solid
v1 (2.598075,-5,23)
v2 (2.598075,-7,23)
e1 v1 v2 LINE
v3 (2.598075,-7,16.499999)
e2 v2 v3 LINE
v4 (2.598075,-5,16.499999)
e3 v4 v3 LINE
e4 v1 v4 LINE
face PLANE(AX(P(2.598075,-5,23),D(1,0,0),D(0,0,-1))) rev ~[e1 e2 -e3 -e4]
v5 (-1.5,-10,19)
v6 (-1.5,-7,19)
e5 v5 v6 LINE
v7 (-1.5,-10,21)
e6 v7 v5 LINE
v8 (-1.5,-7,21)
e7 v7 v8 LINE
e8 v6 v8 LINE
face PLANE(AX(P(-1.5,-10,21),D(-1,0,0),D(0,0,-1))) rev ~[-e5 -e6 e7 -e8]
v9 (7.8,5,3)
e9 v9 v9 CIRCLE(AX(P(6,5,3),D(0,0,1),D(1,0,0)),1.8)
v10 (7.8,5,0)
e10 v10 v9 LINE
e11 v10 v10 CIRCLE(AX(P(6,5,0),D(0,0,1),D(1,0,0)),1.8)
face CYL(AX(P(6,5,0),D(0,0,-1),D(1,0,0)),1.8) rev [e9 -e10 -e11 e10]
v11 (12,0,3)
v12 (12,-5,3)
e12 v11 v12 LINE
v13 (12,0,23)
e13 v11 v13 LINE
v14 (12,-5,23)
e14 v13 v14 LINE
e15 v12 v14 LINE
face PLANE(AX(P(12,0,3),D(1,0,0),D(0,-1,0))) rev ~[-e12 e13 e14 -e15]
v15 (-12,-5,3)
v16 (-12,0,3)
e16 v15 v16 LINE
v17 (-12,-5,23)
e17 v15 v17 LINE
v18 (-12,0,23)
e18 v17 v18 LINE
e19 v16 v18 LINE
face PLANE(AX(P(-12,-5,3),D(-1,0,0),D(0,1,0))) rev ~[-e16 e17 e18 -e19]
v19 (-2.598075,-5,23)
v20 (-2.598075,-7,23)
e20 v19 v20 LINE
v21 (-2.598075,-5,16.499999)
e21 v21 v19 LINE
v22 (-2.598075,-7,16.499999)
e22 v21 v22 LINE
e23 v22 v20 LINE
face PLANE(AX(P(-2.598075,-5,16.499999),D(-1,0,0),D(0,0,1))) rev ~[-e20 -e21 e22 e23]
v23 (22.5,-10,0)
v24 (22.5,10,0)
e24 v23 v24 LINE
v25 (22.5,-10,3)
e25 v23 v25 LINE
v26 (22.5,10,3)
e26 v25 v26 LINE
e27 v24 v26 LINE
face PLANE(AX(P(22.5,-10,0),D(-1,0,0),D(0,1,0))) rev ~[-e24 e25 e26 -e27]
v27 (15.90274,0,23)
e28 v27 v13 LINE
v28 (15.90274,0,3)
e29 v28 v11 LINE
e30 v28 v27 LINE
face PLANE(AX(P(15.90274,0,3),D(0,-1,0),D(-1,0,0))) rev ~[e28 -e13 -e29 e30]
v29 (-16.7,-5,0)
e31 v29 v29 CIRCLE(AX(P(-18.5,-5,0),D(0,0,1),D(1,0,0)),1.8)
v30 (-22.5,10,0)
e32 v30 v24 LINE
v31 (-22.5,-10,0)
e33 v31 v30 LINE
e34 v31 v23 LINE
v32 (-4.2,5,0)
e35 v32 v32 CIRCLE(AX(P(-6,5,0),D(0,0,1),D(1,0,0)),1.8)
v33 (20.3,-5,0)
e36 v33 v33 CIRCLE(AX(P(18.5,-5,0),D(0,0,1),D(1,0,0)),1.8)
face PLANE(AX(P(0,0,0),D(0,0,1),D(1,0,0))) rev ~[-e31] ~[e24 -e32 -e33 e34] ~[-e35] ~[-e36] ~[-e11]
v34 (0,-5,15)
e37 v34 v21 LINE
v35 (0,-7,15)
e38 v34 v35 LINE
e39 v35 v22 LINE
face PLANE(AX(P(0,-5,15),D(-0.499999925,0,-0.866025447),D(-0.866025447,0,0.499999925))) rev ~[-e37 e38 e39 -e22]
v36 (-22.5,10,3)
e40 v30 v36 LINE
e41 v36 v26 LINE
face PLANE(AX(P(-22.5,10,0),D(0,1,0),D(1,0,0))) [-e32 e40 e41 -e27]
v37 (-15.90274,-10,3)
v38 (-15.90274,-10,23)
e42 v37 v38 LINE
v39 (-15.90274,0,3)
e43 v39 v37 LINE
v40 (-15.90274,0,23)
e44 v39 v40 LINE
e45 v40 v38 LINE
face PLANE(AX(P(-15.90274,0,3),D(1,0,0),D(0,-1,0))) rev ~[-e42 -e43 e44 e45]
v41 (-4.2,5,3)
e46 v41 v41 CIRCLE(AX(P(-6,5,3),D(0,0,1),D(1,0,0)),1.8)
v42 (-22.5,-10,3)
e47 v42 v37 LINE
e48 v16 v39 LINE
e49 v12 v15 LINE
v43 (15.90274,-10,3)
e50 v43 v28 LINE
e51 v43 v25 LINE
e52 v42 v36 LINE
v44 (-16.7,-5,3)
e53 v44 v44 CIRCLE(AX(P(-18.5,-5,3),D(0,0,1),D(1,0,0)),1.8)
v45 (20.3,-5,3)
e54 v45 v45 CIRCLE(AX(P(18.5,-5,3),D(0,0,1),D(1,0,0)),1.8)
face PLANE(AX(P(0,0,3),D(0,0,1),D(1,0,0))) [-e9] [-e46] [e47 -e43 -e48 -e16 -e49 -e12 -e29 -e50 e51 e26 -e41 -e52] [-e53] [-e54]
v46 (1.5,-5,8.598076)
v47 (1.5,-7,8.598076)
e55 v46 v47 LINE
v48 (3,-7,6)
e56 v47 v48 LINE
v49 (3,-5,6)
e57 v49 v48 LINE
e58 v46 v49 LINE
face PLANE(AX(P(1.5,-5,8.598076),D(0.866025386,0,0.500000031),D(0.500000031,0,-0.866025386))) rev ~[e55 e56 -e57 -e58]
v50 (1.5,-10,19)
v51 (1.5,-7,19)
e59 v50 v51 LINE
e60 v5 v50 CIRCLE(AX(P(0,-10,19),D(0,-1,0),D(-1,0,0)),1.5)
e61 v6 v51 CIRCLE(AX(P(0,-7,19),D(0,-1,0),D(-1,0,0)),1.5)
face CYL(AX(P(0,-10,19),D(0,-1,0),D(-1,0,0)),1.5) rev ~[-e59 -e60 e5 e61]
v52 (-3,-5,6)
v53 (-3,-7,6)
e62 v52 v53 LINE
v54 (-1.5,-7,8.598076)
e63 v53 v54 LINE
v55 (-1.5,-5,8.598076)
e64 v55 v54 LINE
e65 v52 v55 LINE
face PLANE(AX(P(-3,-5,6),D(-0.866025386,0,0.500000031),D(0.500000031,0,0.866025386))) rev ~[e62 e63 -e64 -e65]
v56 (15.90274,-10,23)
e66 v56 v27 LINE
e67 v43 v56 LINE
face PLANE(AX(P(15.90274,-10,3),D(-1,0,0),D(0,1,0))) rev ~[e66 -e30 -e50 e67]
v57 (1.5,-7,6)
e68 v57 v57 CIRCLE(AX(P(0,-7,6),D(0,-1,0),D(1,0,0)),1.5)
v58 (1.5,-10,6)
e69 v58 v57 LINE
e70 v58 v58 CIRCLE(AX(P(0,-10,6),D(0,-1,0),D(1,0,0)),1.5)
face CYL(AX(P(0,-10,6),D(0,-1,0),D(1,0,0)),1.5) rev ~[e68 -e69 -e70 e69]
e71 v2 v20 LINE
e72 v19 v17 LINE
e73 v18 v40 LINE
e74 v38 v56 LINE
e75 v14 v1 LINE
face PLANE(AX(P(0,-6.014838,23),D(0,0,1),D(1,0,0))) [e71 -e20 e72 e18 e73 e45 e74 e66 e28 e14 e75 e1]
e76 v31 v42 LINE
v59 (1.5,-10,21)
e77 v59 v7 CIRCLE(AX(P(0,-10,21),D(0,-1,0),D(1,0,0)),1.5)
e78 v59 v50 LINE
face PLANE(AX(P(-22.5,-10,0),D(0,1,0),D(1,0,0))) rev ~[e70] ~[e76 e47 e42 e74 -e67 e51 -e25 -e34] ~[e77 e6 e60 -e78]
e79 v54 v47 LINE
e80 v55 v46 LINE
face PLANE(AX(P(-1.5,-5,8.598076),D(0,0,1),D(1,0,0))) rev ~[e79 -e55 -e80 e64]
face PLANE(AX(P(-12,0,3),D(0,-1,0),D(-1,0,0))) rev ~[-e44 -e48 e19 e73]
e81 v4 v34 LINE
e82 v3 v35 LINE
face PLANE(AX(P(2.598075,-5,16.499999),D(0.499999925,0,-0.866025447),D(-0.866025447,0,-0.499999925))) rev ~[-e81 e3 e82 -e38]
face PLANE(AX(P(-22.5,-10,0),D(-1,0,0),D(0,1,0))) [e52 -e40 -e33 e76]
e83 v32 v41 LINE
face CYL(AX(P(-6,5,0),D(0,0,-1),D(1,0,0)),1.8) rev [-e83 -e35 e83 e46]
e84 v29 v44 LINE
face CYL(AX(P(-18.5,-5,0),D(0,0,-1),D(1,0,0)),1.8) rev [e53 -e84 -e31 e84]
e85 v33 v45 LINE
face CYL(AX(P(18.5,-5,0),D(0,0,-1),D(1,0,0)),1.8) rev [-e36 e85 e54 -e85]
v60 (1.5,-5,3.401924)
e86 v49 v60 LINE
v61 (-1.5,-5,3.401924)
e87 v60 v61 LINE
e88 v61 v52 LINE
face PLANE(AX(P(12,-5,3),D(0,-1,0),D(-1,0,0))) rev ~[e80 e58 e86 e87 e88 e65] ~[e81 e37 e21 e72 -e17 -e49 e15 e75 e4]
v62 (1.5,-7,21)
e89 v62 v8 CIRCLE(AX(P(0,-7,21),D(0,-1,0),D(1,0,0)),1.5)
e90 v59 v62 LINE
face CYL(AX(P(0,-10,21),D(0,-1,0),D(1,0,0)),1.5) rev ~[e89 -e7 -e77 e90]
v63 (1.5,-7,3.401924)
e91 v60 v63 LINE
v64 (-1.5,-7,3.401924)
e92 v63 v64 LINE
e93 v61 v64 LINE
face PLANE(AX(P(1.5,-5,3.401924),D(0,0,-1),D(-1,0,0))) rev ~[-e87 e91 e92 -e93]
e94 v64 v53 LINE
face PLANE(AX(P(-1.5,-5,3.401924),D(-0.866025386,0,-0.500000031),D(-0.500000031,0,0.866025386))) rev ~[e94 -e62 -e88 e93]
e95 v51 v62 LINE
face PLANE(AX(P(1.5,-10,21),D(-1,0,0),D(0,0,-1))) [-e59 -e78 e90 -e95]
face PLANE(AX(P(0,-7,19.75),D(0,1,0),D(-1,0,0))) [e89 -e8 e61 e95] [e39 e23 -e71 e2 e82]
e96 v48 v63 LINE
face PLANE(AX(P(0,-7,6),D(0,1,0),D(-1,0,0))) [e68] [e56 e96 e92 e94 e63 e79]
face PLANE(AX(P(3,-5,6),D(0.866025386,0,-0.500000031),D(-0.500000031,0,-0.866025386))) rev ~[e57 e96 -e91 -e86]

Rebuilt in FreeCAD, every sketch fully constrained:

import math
import FreeCAD as App
import Part
import Sketcher
from FreeCAD import Vector
Q = App.Units.Quantity


def add_polygon(sketch, points):
    """Adds a closed chain of lines whose ends are joined by coincident constraints."""
    first, n = sketch.GeometryCount, len(points)
    for a, b in zip(points, points[1:] + points[:1]):
        sketch.addGeometry(Part.LineSegment(App.Vector(*a, 0), App.Vector(*b, 0)), False)
    for i in range(n):
        sketch.addConstraint(Sketcher.Constraint("Coincident", first + i, 2, first + (i + 1) % n, 1))

doc = App.newDocument("Part")
body = doc.addObject("PartDesign::Body", "Body")
body.AllowCompound = True

# Sketch on XZ plane
sketch1 = body.newObject("Sketcher::SketchObject", "Sketch")
sketch1.AttachmentSupport = (doc.getObject("XZ_Plane"), [""])
sketch1.MapMode = "FlatFace"
sketch1.AttachmentOffset = App.Placement(Vector(0, 0, 10), App.Rotation())
sketch1.addGeometry([
    Part.Circle(Vector(0, 6, 0), Vector(0, 0, 1), 1.5),  # 0
    Part.ArcOfCircle(Part.Circle(Vector(0, 21, 0), Vector(0, 0, 1), 1.5), math.radians(0), math.radians(180)),  # 1
    Part.LineSegment(Vector(-1.5, 21, 0), Vector(-1.5, 19, 0)),  # 2
    Part.ArcOfCircle(Part.Circle(Vector(0, 19, 0), Vector(0, 0, 1), 1.5), math.radians(180), math.radians(360)),  # 3
    Part.LineSegment(Vector(1.5, 19, 0), Vector(1.5, 21, 0)),  # 4
], False)
sketch1.addConstraint([
    Sketcher.Constraint("Tangent", 1, 2, 2, 1),
    Sketcher.Constraint("Tangent", 2, 2, 3, 1),
    Sketcher.Constraint("Tangent", 3, 2, 4, 1),
    Sketcher.Constraint("Tangent", 4, 2, 1, 1),
    Sketcher.Constraint("Vertical", 2),
    Sketcher.Constraint("Vertical", 4),
    Sketcher.Constraint("Equal", 0, 1),
    Sketcher.Constraint("PointOnObject", 0, 3, -2),
    Sketcher.Constraint("PointOnObject", 1, 3, -2),
    Sketcher.Constraint("Diameter", 0, Q("3 mm")),
    Sketcher.Constraint("DistanceY", 2, 2, 2, 1, Q("2 mm")),
    Sketcher.Constraint("DistanceY", -1, 1, 0, 3, Q("6 mm")),
    Sketcher.Constraint("DistanceY", -1, 1, 1, 3, Q("21 mm")),
])
pad1 = body.newObject("PartDesign::Pad", "Pad")
pad1.Profile = sketch1
pad1.Length = 5
pad1.Reversed = True
body2 = doc.addObject("PartDesign::Body", "Body001")
body2.AllowCompound = True

# Sketch on XZ plane
sketch2 = body2.newObject("Sketcher::SketchObject", "Sketch001")
sketch2.AttachmentSupport = (doc.getObject("XZ_Plane001"), [""])
sketch2.MapMode = "FlatFace"
sketch2.AttachmentOffset = App.Placement(Vector(0, 0, 5), App.Rotation())
add_polygon(sketch2, [(1.5, 3.4), (-1.5, 3.4), (-3, 6), (-1.5, 8.6), (1.5, 8.6), (3, 6)])  # lines 0-5
add_polygon(sketch2, [(-2.6, 16.5), (-2.6, 23), (0, 24.5), (2.6, 23), (2.6, 16.5), (0, 15)])  # lines 6-11
sketch2.addConstraint([
    Sketcher.Constraint("Horizontal", 0),
    Sketcher.Constraint("Horizontal", 3),
    Sketcher.Constraint("Vertical", 6),
    Sketcher.Constraint("Vertical", 9),
    Sketcher.Constraint("Symmetric", 1, 2, 4, 2, -2),
    Sketcher.Constraint("Symmetric", 6, 2, 8, 2, -2),
    Sketcher.Constraint("PointOnObject", 7, 2, -2),
    Sketcher.Constraint("PointOnObject", 10, 2, -2),
    Sketcher.Constraint("Parallel", 1, 4),
    Sketcher.Constraint("Parallel", 2, 5),
    Sketcher.Constraint("Perpendicular", 4, 7),
    Sketcher.Constraint("Perpendicular", 5, 8),
    Sketcher.Constraint("Parallel", 7, 10),
    Sketcher.Constraint("Parallel", 8, 11),
    Sketcher.Constraint("Vertical", 0, 2, 2, 2),
    Sketcher.Constraint("Equal", 5, 7),
    Sketcher.Constraint("DistanceX", 0, 2, 0, 1, Q("3 mm")),
    Sketcher.Constraint("Angle", 1, Q("120.000002 deg")),
    Sketcher.Constraint("Distance", 1, Q("3 mm")),
    Sketcher.Constraint("DistanceY", 6, 1, 6, 2, Q("6.500001 mm")),
    Sketcher.Constraint("DistanceY", -1, 1, 1, 2, Q("6 mm")),
    Sketcher.Constraint("DistanceY", -1, 1, 6, 2, Q("23 mm")),
])
pad2 = body2.newObject("PartDesign::Pad", "Pad001")
pad2.Profile = sketch2
pad2.Length = 2
doc.recompute()

boolean = body2.newObject("PartDesign::Boolean", "Boolean")
boolean.Type = "Fuse"
boolean.addObjects([body])
body3 = doc.addObject("PartDesign::Body", "Body002")

# Sketch on XY plane
sketch3 = body3.newObject("Sketcher::SketchObject", "Sketch002")
sketch3.AttachmentSupport = (doc.getObject("XY_Plane002"), [""])
sketch3.MapMode = "FlatFace"
add_polygon(sketch3, [(-22.5, 10), (-22.5, -10), (22.5, -10), (22.5, 10)])  # lines 0-3
sketch3.addGeometry(Part.Circle(Vector(-18.5, -5, 0), Vector(0, 0, 1), 1.8), False)  # 4
sketch3.addGeometry(Part.Circle(Vector(18.5, -5, 0), Vector(0, 0, 1), 1.8), False)  # 5
sketch3.addGeometry(Part.Circle(Vector(-6, 5, 0), Vector(0, 0, 1), 1.8), False)  # 6
sketch3.addGeometry(Part.Circle(Vector(6, 5, 0), Vector(0, 0, 1), 1.8), False)  # 7
sketch3.addConstraint([
    Sketcher.Constraint("Vertical", 0),
    Sketcher.Constraint("Horizontal", 1),
    Sketcher.Constraint("Vertical", 2),
    Sketcher.Constraint("Horizontal", 3),
    Sketcher.Constraint("Equal", 4, 5),
    Sketcher.Constraint("Equal", 5, 6),
    Sketcher.Constraint("Equal", 6, 7),
    Sketcher.Constraint("Symmetric", 0, 2, 2, 2, -1, 1),
    Sketcher.Constraint("Symmetric", 4, 3, 5, 3, -2),
    Sketcher.Constraint("Symmetric", 6, 3, 7, 3, -2),
    Sketcher.Constraint("Diameter", 4, Q("3.6 mm")),
    Sketcher.Constraint("DistanceX", 1, 1, 1, 2, Q("45 mm")),
    Sketcher.Constraint("DistanceY", 0, 2, 0, 1, Q("20 mm")),
    Sketcher.Constraint("DistanceY", 4, 3, -1, 1, Q("5 mm")),
    Sketcher.Constraint("DistanceX", 6, 3, -1, 1, Q("6 mm")),
    Sketcher.Constraint("DistanceY", -1, 1, 6, 3, Q("5 mm")),
    Sketcher.Constraint("DistanceX", 4, 3, 5, 3, Q("37 mm")),
])
pad3 = body3.newObject("PartDesign::Pad", "Pad002")
pad3.Profile = sketch3
pad3.Length = 3
body4 = doc.addObject("PartDesign::Body", "Body003")

# Sketch on XY plane
sketch4 = body4.newObject("Sketcher::SketchObject", "Sketch003")
sketch4.AttachmentSupport = (doc.getObject("XY_Plane003"), [""])
sketch4.MapMode = "FlatFace"
sketch4.AttachmentOffset = App.Placement(Vector(0, 0, 3), App.Rotation())
add_polygon(sketch4, [(-12, 0), (-15.9, 0), (-15.9, -10), (15.9, -10), (15.9, 0), (12, 0), (12, -5), (-12, -5)])  # lines 0-7
sketch4.addConstraint([
    Sketcher.Constraint("Horizontal", 0),
    Sketcher.Constraint("Vertical", 1),
    Sketcher.Constraint("Horizontal", 2),
    Sketcher.Constraint("Vertical", 3),
    Sketcher.Constraint("Horizontal", 4),
    Sketcher.Constraint("Vertical", 5),
    Sketcher.Constraint("Horizontal", 6),
    Sketcher.Constraint("Vertical", 7),
    Sketcher.Constraint("Symmetric", 0, 2, 3, 2, -1, 1),
    Sketcher.Constraint("Symmetric", 4, 2, 7, 2, -2),
    Sketcher.Constraint("DistanceX", 6, 2, 6, 1, Q("24 mm")),
    Sketcher.Constraint("DistanceY", 1, 2, 1, 1, Q("10 mm")),
    Sketcher.Constraint("DistanceY", 5, 2, 5, 1, Q("5 mm")),
    Sketcher.Constraint("DistanceX", 0, 2, 0, 1, Q("3.90274 mm")),
])
pad4 = body4.newObject("PartDesign::Pad", "Pad003")
pad4.Profile = sketch4
pad4.Length = 20
doc.recompute()

boolean2 = body4.newObject("PartDesign::Boolean", "Boolean001")
boolean2.Type = "Fuse"
boolean2.addObjects([body3])
doc.recompute()

boolean3 = body4.newObject("PartDesign::Boolean", "Boolean002")
boolean3.Type = "Cut"
boolean3.addObjects([body2])

doc.recompute()
